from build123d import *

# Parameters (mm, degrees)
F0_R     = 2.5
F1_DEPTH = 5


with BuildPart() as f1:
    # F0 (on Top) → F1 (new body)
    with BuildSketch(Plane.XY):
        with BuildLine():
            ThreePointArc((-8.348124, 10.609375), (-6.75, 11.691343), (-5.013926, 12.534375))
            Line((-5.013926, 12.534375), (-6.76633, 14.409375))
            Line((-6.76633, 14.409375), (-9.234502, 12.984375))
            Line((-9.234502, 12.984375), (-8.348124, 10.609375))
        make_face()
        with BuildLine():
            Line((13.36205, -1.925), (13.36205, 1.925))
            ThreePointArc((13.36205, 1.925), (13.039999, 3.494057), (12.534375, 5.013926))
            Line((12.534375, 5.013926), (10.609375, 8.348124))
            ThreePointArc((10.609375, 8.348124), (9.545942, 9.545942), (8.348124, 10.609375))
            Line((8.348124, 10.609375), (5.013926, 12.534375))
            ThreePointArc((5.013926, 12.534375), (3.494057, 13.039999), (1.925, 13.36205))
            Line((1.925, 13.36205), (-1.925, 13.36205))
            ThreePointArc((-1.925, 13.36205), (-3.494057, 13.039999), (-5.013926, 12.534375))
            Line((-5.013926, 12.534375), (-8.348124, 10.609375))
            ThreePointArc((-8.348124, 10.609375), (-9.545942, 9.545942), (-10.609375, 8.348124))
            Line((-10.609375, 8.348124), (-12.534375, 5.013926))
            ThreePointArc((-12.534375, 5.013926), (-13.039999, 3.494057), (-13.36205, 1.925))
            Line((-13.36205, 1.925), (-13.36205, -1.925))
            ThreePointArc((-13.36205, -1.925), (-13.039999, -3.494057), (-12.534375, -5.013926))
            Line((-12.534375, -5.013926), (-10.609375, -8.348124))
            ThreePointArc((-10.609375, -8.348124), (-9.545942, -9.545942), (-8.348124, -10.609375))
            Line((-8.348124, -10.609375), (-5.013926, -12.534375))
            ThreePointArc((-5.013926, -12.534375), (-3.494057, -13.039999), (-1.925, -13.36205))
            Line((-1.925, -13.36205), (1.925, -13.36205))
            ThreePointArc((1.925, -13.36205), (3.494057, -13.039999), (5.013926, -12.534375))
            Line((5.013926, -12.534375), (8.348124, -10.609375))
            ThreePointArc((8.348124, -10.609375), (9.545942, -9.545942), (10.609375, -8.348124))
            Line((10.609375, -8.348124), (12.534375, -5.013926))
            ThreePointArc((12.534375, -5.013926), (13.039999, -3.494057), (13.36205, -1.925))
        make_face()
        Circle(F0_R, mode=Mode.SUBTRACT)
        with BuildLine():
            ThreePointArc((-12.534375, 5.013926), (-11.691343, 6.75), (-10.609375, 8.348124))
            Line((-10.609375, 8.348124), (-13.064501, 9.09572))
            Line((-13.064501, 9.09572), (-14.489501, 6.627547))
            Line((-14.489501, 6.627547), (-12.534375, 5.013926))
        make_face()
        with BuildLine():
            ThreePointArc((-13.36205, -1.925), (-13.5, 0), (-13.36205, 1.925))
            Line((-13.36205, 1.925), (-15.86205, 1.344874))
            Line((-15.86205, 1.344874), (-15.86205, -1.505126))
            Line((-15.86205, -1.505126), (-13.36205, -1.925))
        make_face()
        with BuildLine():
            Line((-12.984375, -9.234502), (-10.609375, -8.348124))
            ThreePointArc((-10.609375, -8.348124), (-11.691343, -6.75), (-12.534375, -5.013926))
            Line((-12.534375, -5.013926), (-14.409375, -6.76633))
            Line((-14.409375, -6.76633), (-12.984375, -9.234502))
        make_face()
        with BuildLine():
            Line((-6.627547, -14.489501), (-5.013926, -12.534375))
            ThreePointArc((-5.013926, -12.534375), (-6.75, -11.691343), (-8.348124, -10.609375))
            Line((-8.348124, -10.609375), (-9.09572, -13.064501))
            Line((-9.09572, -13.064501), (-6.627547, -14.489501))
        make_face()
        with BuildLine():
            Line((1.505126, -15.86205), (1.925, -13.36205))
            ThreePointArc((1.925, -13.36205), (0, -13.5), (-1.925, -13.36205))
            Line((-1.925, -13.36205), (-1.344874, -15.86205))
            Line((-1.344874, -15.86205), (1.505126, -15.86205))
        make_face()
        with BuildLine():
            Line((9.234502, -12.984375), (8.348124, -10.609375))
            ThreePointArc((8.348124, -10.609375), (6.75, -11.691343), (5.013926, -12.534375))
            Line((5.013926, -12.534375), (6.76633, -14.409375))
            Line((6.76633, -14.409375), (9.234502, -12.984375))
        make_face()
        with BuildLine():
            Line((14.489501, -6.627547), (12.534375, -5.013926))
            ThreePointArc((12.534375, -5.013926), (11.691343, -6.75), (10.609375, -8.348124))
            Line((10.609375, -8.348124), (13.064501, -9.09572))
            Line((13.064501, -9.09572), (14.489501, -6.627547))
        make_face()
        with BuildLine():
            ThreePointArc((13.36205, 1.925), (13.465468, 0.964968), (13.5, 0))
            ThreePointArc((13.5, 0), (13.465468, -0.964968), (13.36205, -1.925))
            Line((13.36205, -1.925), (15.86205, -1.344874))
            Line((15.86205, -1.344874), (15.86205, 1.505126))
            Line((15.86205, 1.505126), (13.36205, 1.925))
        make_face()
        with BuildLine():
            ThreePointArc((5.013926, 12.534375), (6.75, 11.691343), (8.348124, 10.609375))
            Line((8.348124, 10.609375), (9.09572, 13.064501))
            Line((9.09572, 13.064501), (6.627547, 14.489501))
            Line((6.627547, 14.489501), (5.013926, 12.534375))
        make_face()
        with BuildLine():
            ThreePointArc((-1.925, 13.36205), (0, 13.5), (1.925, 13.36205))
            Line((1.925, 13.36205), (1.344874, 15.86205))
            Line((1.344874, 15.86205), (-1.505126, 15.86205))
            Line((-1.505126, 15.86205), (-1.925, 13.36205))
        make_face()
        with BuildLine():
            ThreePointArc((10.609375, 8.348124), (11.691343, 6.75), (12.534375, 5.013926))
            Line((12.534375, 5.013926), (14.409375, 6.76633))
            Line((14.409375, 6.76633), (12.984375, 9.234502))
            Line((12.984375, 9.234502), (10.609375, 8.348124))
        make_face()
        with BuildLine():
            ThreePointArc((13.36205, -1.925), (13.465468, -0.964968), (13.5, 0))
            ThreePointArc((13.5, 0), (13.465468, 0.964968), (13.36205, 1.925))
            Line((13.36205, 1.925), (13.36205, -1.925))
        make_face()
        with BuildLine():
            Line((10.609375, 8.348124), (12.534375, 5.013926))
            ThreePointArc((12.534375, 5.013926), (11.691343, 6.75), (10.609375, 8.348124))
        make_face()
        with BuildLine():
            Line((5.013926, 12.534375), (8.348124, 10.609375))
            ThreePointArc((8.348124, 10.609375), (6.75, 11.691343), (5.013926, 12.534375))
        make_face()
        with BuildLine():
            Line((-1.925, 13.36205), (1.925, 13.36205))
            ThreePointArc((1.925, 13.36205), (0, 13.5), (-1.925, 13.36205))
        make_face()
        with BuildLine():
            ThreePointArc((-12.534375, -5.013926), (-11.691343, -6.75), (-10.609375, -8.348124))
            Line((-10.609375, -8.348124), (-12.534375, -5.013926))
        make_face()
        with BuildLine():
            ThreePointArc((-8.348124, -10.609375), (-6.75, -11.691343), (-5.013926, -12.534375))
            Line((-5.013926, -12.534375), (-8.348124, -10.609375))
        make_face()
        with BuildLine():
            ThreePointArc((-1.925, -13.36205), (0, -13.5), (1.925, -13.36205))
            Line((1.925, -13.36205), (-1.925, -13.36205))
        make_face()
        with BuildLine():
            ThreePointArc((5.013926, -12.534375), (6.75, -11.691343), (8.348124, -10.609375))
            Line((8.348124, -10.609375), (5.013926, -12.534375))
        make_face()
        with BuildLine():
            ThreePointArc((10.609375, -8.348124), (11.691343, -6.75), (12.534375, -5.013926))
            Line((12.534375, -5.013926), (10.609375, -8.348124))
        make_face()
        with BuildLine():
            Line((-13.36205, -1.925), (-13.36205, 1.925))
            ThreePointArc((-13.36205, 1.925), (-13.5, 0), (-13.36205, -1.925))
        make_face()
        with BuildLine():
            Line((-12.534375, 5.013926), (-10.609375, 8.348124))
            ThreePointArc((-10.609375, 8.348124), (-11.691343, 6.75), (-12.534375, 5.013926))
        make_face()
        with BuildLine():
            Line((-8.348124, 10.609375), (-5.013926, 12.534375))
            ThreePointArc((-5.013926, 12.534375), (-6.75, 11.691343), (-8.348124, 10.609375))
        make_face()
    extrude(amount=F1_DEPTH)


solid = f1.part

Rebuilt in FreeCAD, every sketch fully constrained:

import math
import FreeCAD as App
import Part
import Sketcher

doc = App.newDocument("Part")
body = doc.addObject("PartDesign::Body", "Body")

# Sketch on XY plane
sketch1 = doc.addObject("Sketcher::SketchObject", "Sketch")
body.addObject(sketch1)
sketch1.AttachmentSupport = (doc.XY_Plane, [""])
sketch1.MapMode = "FlatFace"
sketch1.addGeometry([
    Part.LineSegment(App.Vector(-5.013926, 12.534375, 0), App.Vector(-6.76633, 14.409375, 0)),  # 0
    Part.LineSegment(App.Vector(-6.76633, 14.409375, 0), App.Vector(-9.234502, 12.984375, 0)),  # 1
    Part.LineSegment(App.Vector(-9.234502, 12.984375, 0), App.Vector(-8.348124, 10.609375, 0)),  # 2
    Part.ArcOfCircle(Part.Circle(App.Vector(-0.000019, 0.000019, 0), App.Vector(0, 0, 1), 13.499974), math.radians(128.197882), math.radians(141.802118)),  # 3
    Part.LineSegment(App.Vector(-10.609375, 8.348124, 0), App.Vector(-13.064501, 9.09572, 0)),  # 4
    Part.LineSegment(App.Vector(-13.064501, 9.09572, 0), App.Vector(-14.489501, 6.627547, 0)),  # 5
    Part.LineSegment(App.Vector(-14.489501, 6.627547, 0), App.Vector(-12.534375, 5.013926, 0)),  # 6
    Part.ArcOfCircle(Part.Circle(App.Vector(-0.000002, 0.000001, 0), App.Vector(0, 0, 1), 13.499998), math.radians(158.1979), math.radians(171.802108)),  # 7
    Part.LineSegment(App.Vector(-13.36205, 1.925, 0), App.Vector(-15.86205, 1.344874, 0)),  # 8
    Part.LineSegment(App.Vector(-15.86205, 1.344874, 0), App.Vector(-15.86205, -1.505126, 0)),  # 9
    Part.LineSegment(App.Vector(-15.86205, -1.505126, 0), App.Vector(-13.36205, -1.925, 0)),  # 10
    Part.ArcOfCircle(Part.Circle(App.Vector(-0.000002, -0.000001, 0), App.Vector(0, 0, 1), 13.499998), math.radians(-171.802108), math.radians(-158.1979)),  # 11
    Part.LineSegment(App.Vector(-12.534375, -5.013926, 0), App.Vector(-14.409375, -6.76633, 0)),  # 12
    Part.LineSegment(App.Vector(-14.409375, -6.76633, 0), App.Vector(-12.984375, -9.234502, 0)),  # 13
    Part.LineSegment(App.Vector(-12.984375, -9.234502, 0), App.Vector(-10.609375, -8.348124, 0)),  # 14
    Part.ArcOfCircle(Part.Circle(App.Vector(-0.000019, -0.000019, 0), App.Vector(0, 0, 1), 13.499974), math.radians(-141.802118), math.radians(-128.197882)),  # 15
    Part.LineSegment(App.Vector(-8.348124, -10.609375, 0), App.Vector(-9.09572, -13.064501, 0)),  # 16
    Part.LineSegment(App.Vector(-9.09572, -13.064501, 0), App.Vector(-6.627547, -14.489501, 0)),  # 17
    Part.LineSegment(App.Vector(-6.627547, -14.489501, 0), App.Vector(-5.013926, -12.534375, 0)),  # 18
    Part.ArcOfCircle(Part.Circle(App.Vector(-0.000001, -0.000002, 0), App.Vector(0, 0, 1), 13.499998), math.radians(-111.8021), math.radians(-98.197892)),  # 19
    Part.LineSegment(App.Vector(-1.925, -13.36205, 0), App.Vector(-1.344874, -15.86205, 0)),  # 20
    Part.LineSegment(App.Vector(-1.344874, -15.86205, 0), App.Vector(1.505126, -15.86205, 0)),  # 21
    Part.LineSegment(App.Vector(1.505126, -15.86205, 0), App.Vector(1.925, -13.36205, 0)),  # 22
    Part.ArcOfCircle(Part.Circle(App.Vector(0.000001, -0.000002, 0), App.Vector(0, 0, 1), 13.499998), math.radians(-81.802108), math.radians(-68.1979)),  # 23
    Part.LineSegment(App.Vector(5.013926, -12.534375, 0), App.Vector(6.76633, -14.409375, 0)),  # 24
    Part.LineSegment(App.Vector(6.76633, -14.409375, 0), App.Vector(9.234502, -12.984375, 0)),  # 25
    Part.LineSegment(App.Vector(9.234502, -12.984375, 0), App.Vector(8.348124, -10.609375, 0)),  # 26
    Part.ArcOfCircle(Part.Circle(App.Vector(0.000019, -0.000019, 0), App.Vector(0, 0, 1), 13.499974), math.radians(-51.802118), math.radians(-38.197882)),  # 27
    Part.LineSegment(App.Vector(10.609375, -8.348124, 0), App.Vector(13.064501, -9.09572, 0)),  # 28
    Part.LineSegment(App.Vector(13.064501, -9.09572, 0), App.Vector(14.489501, -6.627547, 0)),  # 29
    Part.LineSegment(App.Vector(14.489501, -6.627547, 0), App.Vector(12.534375, -5.013926, 0)),  # 30
    Part.ArcOfCircle(Part.Circle(App.Vector(0.000002, -0.000001, 0), App.Vector(0, 0, 1), 13.499998), math.radians(-21.8021), math.radians(-8.197892)),  # 31
    Part.LineSegment(App.Vector(13.36205, -1.925, 0), App.Vector(15.86205, -1.344874, 0)),  # 32
    Part.LineSegment(App.Vector(15.86205, -1.344874, 0), App.Vector(15.86205, 1.505126, 0)),  # 33
    Part.LineSegment(App.Vector(15.86205, 1.505126, 0), App.Vector(13.36205, 1.925, 0)),  # 34
    Part.ArcOfCircle(Part.Circle(App.Vector(0.000002, 0.000001, 0), App.Vector(0, 0, 1), 13.499998), math.radians(8.197892), math.radians(21.8021)),  # 35
    Part.LineSegment(App.Vector(12.534375, 5.013926, 0), App.Vector(14.409375, 6.76633, 0)),  # 36
    Part.LineSegment(App.Vector(14.409375, 6.76633, 0), App.Vector(12.984375, 9.234502, 0)),  # 37
    Part.LineSegment(App.Vector(12.984375, 9.234502, 0), App.Vector(10.609375, 8.348124, 0)),  # 38
    Part.ArcOfCircle(Part.Circle(App.Vector(0.000019, 0.000019, 0), App.Vector(0, 0, 1), 13.499974), math.radians(38.197882), math.radians(51.802118)),  # 39
    Part.LineSegment(App.Vector(8.348124, 10.609375, 0), App.Vector(9.09572, 13.064501, 0)),  # 40
    Part.LineSegment(App.Vector(9.09572, 13.064501, 0), App.Vector(6.627547, 14.489501, 0)),  # 41
    Part.LineSegment(App.Vector(6.627547, 14.489501, 0), App.Vector(5.013926, 12.534375, 0)),  # 42
    Part.ArcOfCircle(Part.Circle(App.Vector(0.000001, 0.000002, 0), App.Vector(0, 0, 1), 13.499998), math.radians(68.1979), math.radians(81.802108)),  # 43
    Part.LineSegment(App.Vector(1.925, 13.36205, 0), App.Vector(1.344874, 15.86205, 0)),  # 44
    Part.LineSegment(App.Vector(1.344874, 15.86205, 0), App.Vector(-1.505126, 15.86205, 0)),  # 45
    Part.LineSegment(App.Vector(-1.505126, 15.86205, 0), App.Vector(-1.925, 13.36205, 0)),  # 46
    Part.ArcOfCircle(Part.Circle(App.Vector(-0.000001, 0.000002, 0), App.Vector(0, 0, 1), 13.499998), math.radians(98.197892), math.radians(111.8021)),  # 47
    Part.Circle(App.Vector(0, 0, 0), App.Vector(0, 0, 1), 2.5),  # 48
], False)
sketch1.addConstraint([
    Sketcher.Constraint("Coincident", 0, 2, 1, 1),
    Sketcher.Constraint("Coincident", 1, 2, 2, 1),
    Sketcher.Constraint("Coincident", 2, 2, 3, 1),
    Sketcher.Constraint("Coincident", 3, 2, 4, 1),
    Sketcher.Constraint("Coincident", 4, 2, 5, 1),
    Sketcher.Constraint("Coincident", 5, 2, 6, 1),
    Sketcher.Constraint("Coincident", 6, 2, 7, 1),
    Sketcher.Constraint("Coincident", 7, 2, 8, 1),
    Sketcher.Constraint("Coincident", 8, 2, 9, 1),
    Sketcher.Constraint("Coincident", 9, 2, 10, 1),
    Sketcher.Constraint("Coincident", 10, 2, 11, 1),
    Sketcher.Constraint("Coincident", 11, 2, 12, 1),
    Sketcher.Constraint("Coincident", 12, 2, 13, 1),
    Sketcher.Constraint("Coincident", 13, 2, 14, 1),
    Sketcher.Constraint("Coincident", 14, 2, 15, 1),
    Sketcher.Constraint("Coincident", 15, 2, 16, 1),
    Sketcher.Constraint("Coincident", 16, 2, 17, 1),
    Sketcher.Constraint("Coincident", 17, 2, 18, 1),
    Sketcher.Constraint("Coincident", 18, 2, 19, 1),
    Sketcher.Constraint("Coincident", 19, 2, 20, 1),
    Sketcher.Constraint("Coincident", 20, 2, 21, 1),
    Sketcher.Constraint("Coincident", 21, 2, 22, 1),
    Sketcher.Constraint("Coincident", 22, 2, 23, 1),
    Sketcher.Constraint("Coincident", 23, 2, 24, 1),
    Sketcher.Constraint("Coincident", 24, 2, 25, 1),
    Sketcher.Constraint("Coincident", 25, 2, 26, 1),
    Sketcher.Constraint("Coincident", 26, 2, 27, 1),
    Sketcher.Constraint("Coincident", 27, 2, 28, 1),
    Sketcher.Constraint("Coincident", 28, 2, 29, 1),
    Sketcher.Constraint("Coincident", 29, 2, 30, 1),
    Sketcher.Constraint("Coincident", 30, 2, 31, 1),
    Sketcher.Constraint("Coincident", 31, 2, 32, 1),
    Sketcher.Constraint("Coincident", 32, 2, 33, 1),
    Sketcher.Constraint("Coincident", 33, 2, 34, 1),
    Sketcher.Constraint("Coincident", 34, 2, 35, 1),
    Sketcher.Constraint("Coincident", 35, 2, 36, 1),
    Sketcher.Constraint("Coincident", 36, 2, 37, 1),
    Sketcher.Constraint("Coincident", 37, 2, 38, 1),
    Sketcher.Constraint("Coincident", 38, 2, 39, 1),
    Sketcher.Constraint("Coincident", 39, 2, 40, 1),
    Sketcher.Constraint("Coincident", 40, 2, 41, 1),
    Sketcher.Constraint("Coincident", 41, 2, 42, 1),
    Sketcher.Constraint("Coincident", 42, 2, 43, 1),
    Sketcher.Constraint("Coincident", 43, 2, 44, 1),
    Sketcher.Constraint("Coincident", 44, 2, 45, 1),
    Sketcher.Constraint("Coincident", 45, 2, 46, 1),
    Sketcher.Constraint("Coincident", 46, 2, 47, 1),
    Sketcher.Constraint("Coincident", 47, 2, 0, 1),
    Sketcher.Constraint("Vertical", 9),
    Sketcher.Constraint("Horizontal", 21),
    Sketcher.Constraint("Vertical", 33),
    Sketcher.Constraint("Horizontal", 45),
    Sketcher.Constraint("Coincident", 7, 3, -1, 1),
    Sketcher.Constraint("Coincident", 11, 3, -1, 1),
    Sketcher.Constraint("Coincident", 19, 3, -1, 1),
    Sketcher.Constraint("Coincident", 23, 3, -1, 1),
    Sketcher.Constraint("Coincident", 31, 3, -1, 1),
    Sketcher.Constraint("Coincident", 35, 3, -1, 1),
    Sketcher.Constraint("Coincident", 43, 3, -1, 1),
    Sketcher.Constraint("Coincident", 47, 3, -1, 1),
    Sketcher.Constraint("Coincident", 48, 3, -1, 1),
    Sketcher.Constraint("Diameter", 48, 5.0),
    Sketcher.Constraint("Radius", 7, 13.499998),
    Sketcher.Constraint("Radius", 11, 13.499998),
    Sketcher.Constraint("Radius", 19, 13.499998),
    Sketcher.Constraint("Radius", 23, 13.499998),
    Sketcher.Constraint("Radius", 31, 13.499998),
    Sketcher.Constraint("Radius", 35, 13.499998),
    Sketcher.Constraint("Radius", 43, 13.499998),
    Sketcher.Constraint("Radius", 47, 13.499998),
    Sketcher.Constraint("DistanceX", 21, 1, 21, 2, 2.85),
    Sketcher.Constraint("DistanceX", 45, 2, 45, 1, 2.85),
    Sketcher.Constraint("DistanceY", 9, 2, 9, 1, 2.85),
    Sketcher.Constraint("DistanceY", 33, 1, 33, 2, 2.85),
    Sketcher.Constraint("Distance", 1, 2.85),
    Sketcher.Constraint("Distance", 5, 2.850001),
    Sketcher.Constraint("Distance", 13, 2.85),
    Sketcher.Constraint("Distance", 17, 2.850001),
    Sketcher.Constraint("Distance", 25, 2.85),
    Sketcher.Constraint("Distance", 29, 2.850001),
    Sketcher.Constraint("Distance", 37, 2.85),
    Sketcher.Constraint("Distance", 41, 2.850001),
    Sketcher.Constraint("DistanceY", -1, 1, 7, 2, 1.925),
    Sketcher.Constraint("DistanceY", 10, 2, -1, 1, 1.925),
    Sketcher.Constraint("DistanceX", 19, 2, -1, 1, 1.925),
    Sketcher.Constraint("DistanceX", -1, 1, 22, 2, 1.925),
    Sketcher.Constraint("DistanceY", 31, 2, -1, 1, 1.925),
    Sketcher.Constraint("DistanceY", -1, 1, 34, 2, 1.925),
    Sketcher.Constraint("DistanceX", -1, 1, 43, 2, 1.925),
    Sketcher.Constraint("DistanceX", 46, 2, -1, 1, 1.925),
    Sketcher.Constraint("Radius", 3, 13.499974),
    Sketcher.Constraint("Radius", 15, 13.499974),
    Sketcher.Constraint("Radius", 27, 13.499974),
    Sketcher.Constraint("Radius", 39, 13.499974),
    Sketcher.Constraint("DistanceX", 4, 2, -1, 1, 13.064501),
    Sketcher.Constraint("DistanceX", 5, 2, -1, 1, 14.489501),
    Sketcher.Constraint("DistanceY", 16, 2, -1, 1, 13.064501),
    Sketcher.Constraint("DistanceY", 17, 2, -1, 1, 14.489501),
    Sketcher.Constraint("DistanceX", -1, 1, 28, 2, 13.064501),
    Sketcher.Constraint("DistanceX", -1, 1, 29, 2, 14.489501),
    Sketcher.Constraint("DistanceY", -1, 1, 40, 2, 13.064501),
    Sketcher.Constraint("DistanceY", -1, 1, 41, 2, 14.489501),
    Sketcher.Constraint("DistanceX", 0, 2, -1, 1, 6.76633),
    Sketcher.Constraint("DistanceY", -1, 1, 4, 2, 9.09572),
    Sketcher.Constraint("DistanceX", 8, 2, -1, 1, 15.86205),
    Sketcher.Constraint("DistanceY", 12, 2, -1, 1, 6.76633),
    Sketcher.Constraint("DistanceX", 16, 2, -1, 1, 9.09572),
    Sketcher.Constraint("DistanceY", 20, 2, -1, 1, 15.86205),
    Sketcher.Constraint("DistanceX", -1, 1, 24, 2, 6.76633),
    Sketcher.Constraint("DistanceY", 28, 2, -1, 1, 9.09572),
    Sketcher.Constraint("DistanceX", -1, 1, 32, 2, 15.86205),
    Sketcher.Constraint("DistanceY", -1, 1, 36, 2, 6.76633),
    Sketcher.Constraint("DistanceX", -1, 1, 40, 2, 9.09572),
    Sketcher.Constraint("DistanceY", -1, 1, 44, 2, 15.86205),
    Sketcher.Constraint("Distance", 0, 2.566426),
    Sketcher.Constraint("Distance", 2, 2.535013),
    Sketcher.Constraint("Distance", 4, 2.566426),
    Sketcher.Constraint("Distance", 6, 2.535013),
    Sketcher.Constraint("Distance", 8, 2.566427),
    Sketcher.Constraint("Distance", 12, 2.566426),
    Sketcher.Constraint("Distance", 14, 2.535013),
    Sketcher.Constraint("Distance", 16, 2.566426),
    Sketcher.Constraint("Distance", 18, 2.535013),
    Sketcher.Constraint("Distance", 20, 2.566427),
    Sketcher.Constraint("Distance", 24, 2.566426),
    Sketcher.Constraint("Distance", 26, 2.535013),
    Sketcher.Constraint("Distance", 28, 2.566426),
    Sketcher.Constraint("Distance", 30, 2.535013),
    Sketcher.Constraint("Distance", 32, 2.566427),
    Sketcher.Constraint("Distance", 36, 2.566426),
    Sketcher.Constraint("Distance", 38, 2.535013),
    Sketcher.Constraint("Distance", 40, 2.566426),
    Sketcher.Constraint("Distance", 42, 2.535013),
    Sketcher.Constraint("Distance", 44, 2.566427),
    Sketcher.Constraint("DistanceY", -1, 1, 0, 2, 14.409375),
    Sketcher.Constraint("DistanceX", 1, 2, -1, 1, 9.234502),
    Sketcher.Constraint("DistanceX", 2, 2, -1, 1, 8.348124),
    Sketcher.Constraint("DistanceX", 3, 2, -1, 1, 10.609375),
    Sketcher.Constraint("DistanceX", 11, 2, -1, 1, 12.534375),
    Sketcher.Constraint("DistanceX", 13, 2, -1, 1, 12.984375),
    Sketcher.Constraint("DistanceX", 14, 2, -1, 1, 10.609375),
    Sketcher.Constraint("DistanceX", 15, 2, -1, 1, 8.348124),
    Sketcher.Constraint("DistanceX", -1, 1, 23, 2, 5.013926),
    Sketcher.Constraint("DistanceX", -1, 1, 25, 2, 9.234502),
    Sketcher.Constraint("DistanceX", -1, 1, 26, 2, 8.348124),
    Sketcher.Constraint("DistanceX", -1, 1, 27, 2, 10.609375),
    Sketcher.Constraint("DistanceX", -1, 1, 35, 2, 12.534375),
    Sketcher.Constraint("DistanceX", -1, 1, 37, 2, 12.984375),
    Sketcher.Constraint("DistanceX", -1, 1, 38, 2, 10.609375),
    Sketcher.Constraint("DistanceX", -1, 1, 39, 2, 8.348124),
])
pad1 = doc.addObject("PartDesign::Pad", "Pad")
body.addObject(pad1)
pad1.Profile = sketch1
pad1.Length = 5

doc.recompute()
